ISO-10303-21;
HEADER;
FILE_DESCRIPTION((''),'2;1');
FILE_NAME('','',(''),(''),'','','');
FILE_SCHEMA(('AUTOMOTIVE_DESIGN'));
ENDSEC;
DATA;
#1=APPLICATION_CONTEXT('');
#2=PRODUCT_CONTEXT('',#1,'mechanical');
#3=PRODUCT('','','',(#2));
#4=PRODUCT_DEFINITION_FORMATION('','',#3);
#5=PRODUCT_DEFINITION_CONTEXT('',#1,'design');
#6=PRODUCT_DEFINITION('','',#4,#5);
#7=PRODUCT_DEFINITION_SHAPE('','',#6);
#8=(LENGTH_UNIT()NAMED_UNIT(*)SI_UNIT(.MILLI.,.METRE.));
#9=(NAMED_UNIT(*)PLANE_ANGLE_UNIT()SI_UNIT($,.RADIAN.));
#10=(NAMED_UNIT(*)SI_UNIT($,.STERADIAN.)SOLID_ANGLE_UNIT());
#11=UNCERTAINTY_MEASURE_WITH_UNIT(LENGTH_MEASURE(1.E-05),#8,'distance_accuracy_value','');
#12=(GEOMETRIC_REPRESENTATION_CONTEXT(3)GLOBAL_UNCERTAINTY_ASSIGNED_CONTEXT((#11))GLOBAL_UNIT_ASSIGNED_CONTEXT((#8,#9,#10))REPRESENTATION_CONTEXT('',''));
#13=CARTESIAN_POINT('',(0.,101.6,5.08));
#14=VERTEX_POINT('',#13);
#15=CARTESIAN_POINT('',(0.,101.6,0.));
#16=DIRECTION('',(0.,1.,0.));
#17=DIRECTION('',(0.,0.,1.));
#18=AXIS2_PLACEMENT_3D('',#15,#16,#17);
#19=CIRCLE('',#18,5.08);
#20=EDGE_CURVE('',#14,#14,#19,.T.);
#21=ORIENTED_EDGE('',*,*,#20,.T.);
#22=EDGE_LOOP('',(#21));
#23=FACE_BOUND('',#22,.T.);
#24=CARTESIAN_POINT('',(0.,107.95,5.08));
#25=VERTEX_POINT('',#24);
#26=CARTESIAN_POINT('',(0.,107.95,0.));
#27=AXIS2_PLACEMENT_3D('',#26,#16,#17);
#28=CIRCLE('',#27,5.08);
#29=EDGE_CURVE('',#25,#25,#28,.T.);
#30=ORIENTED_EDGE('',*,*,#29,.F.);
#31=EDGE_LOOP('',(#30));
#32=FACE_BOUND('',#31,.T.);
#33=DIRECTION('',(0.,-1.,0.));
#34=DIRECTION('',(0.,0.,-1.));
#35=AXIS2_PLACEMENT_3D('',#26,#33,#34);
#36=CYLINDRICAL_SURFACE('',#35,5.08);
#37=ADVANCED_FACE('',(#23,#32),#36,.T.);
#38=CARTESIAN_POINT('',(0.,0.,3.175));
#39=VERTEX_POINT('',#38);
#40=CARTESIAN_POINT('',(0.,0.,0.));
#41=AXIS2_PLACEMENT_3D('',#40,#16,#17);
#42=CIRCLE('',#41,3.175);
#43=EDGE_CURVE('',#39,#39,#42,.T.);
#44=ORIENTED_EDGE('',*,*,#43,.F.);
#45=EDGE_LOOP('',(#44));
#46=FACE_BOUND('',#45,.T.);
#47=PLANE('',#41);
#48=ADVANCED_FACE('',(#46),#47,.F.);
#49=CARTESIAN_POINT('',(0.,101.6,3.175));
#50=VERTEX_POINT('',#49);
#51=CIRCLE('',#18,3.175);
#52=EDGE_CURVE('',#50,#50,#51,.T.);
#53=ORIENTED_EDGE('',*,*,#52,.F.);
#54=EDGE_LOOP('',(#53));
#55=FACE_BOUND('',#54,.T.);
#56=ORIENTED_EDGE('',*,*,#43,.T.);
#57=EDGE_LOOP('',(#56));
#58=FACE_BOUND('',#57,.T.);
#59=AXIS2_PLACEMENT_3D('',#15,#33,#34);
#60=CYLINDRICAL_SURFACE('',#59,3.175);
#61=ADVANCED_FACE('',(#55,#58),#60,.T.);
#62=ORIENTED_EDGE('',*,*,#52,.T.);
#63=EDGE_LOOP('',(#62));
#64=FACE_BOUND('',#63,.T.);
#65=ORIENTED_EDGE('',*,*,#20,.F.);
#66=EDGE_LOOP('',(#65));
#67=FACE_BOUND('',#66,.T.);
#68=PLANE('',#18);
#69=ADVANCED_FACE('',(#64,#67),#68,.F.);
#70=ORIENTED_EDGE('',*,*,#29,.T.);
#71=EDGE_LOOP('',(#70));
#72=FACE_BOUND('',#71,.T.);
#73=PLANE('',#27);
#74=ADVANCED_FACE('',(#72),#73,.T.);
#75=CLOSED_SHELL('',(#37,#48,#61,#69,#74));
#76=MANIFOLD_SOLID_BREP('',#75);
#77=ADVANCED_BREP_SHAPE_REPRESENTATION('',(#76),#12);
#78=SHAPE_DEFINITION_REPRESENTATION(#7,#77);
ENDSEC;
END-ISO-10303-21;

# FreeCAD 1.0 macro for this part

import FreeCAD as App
import Part
import Sketcher
from FreeCAD import Vector
Q = App.Units.Quantity

doc = App.newDocument("Part")
body = doc.addObject("PartDesign::Body", "Body")

sketch1 = doc.addObject("Sketcher::SketchObject", "Sketch")
body.addObject(sketch1)
sketch1.AttachmentSupport = (doc.XZ_Plane, [""])
sketch1.MapMode = "FlatFace"
sketch1.addGeometry(Part.Circle(Vector(0, 0, 0), Vector(0, 0, 1), 3.175), False)
sketch1.addConstraint(Sketcher.Constraint("Coincident", 0, 3, -1, 1))
sketch1.addConstraint(Sketcher.Constraint("Diameter", 0, Q("0.25 in")))
pad1 = doc.addObject("PartDesign::Pad", "Pad")
body.addObject(pad1)
pad1.Profile = sketch1
pad1.Length = Q("4 in")
pad1.Reversed = True

sketch2 = doc.addObject("Sketcher::SketchObject", "Sketch001")
body.addObject(sketch2)
sketch2.AttachmentSupport = (doc.XZ_Plane, [""])
sketch2.MapMode = "FlatFace"
sketch2.AttachmentOffset = App.Placement(Vector(0, 0, -4 * 25.4), App.Rotation())
sketch2.addGeometry(Part.Circle(Vector(0, 0, 0), Vector(0, 0, 1), 5.08), False)
sketch2.addConstraint(Sketcher.Constraint("Coincident", 0, 3, -1, 1))
sketch2.addConstraint(Sketcher.Constraint("Diameter", 0, Q("0.4 in")))
pad2 = doc.addObject("PartDesign::Pad", "Pad001")
body.addObject(pad2)
pad2.Profile = sketch2
pad2.Length = Q("0.25 in")
pad2.Reversed = True

doc.recompute()
